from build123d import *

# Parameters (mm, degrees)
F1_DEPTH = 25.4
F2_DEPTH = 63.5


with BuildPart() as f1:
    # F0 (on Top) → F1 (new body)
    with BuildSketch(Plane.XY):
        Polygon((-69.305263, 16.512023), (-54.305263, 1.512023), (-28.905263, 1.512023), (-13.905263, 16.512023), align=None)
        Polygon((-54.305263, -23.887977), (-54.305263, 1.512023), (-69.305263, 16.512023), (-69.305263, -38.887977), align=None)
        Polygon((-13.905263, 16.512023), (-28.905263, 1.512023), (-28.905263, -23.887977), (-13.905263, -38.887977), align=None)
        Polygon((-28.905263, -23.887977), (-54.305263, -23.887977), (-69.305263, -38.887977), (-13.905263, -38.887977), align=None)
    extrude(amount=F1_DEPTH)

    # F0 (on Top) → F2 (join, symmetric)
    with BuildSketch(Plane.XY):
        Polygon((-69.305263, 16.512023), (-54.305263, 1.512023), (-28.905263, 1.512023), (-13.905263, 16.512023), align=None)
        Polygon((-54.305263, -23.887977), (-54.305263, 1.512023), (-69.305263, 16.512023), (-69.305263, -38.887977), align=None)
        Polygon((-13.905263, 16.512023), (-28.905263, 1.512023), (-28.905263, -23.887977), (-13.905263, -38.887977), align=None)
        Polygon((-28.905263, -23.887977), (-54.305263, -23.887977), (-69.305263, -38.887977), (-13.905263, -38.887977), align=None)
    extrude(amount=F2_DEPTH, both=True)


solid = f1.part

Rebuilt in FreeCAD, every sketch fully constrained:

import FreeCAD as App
import Part
import Sketcher
from FreeCAD import Vector
Q = App.Units.Quantity


def add_polygon(sketch, points):
    """Adds a closed chain of lines whose ends are joined by coincident constraints."""
    first, n = sketch.GeometryCount, len(points)
    for a, b in zip(points, points[1:] + points[:1]):
        sketch.addGeometry(Part.LineSegment(App.Vector(*a, 0), App.Vector(*b, 0)), False)
    for i in range(n):
        sketch.addConstraint(Sketcher.Constraint("Coincident", first + i, 2, first + (i + 1) % n, 1))

doc = App.newDocument("Part")
params = doc.addObject("Spreadsheet::Sheet", "Params")
for row, (alias, value) in enumerate([
    ("sketch1_width", "1 in"),
    ("pad1_length", "1 in"),
    ("sketch2_width", "1 in"),
    ("pad2_length", "5 in"),
], start=1):
    params.set(f"A{row}", alias)
    params.set(f"B{row}", "=" + value)
    params.setAlias(f"B{row}", alias)

body = doc.addObject("PartDesign::Body", "Body")

# Sketch on XY plane
sketch1 = body.newObject("Sketcher::SketchObject", "Sketch")
sketch1.AttachmentSupport = (doc.getObject("XY_Plane"), [""])
sketch1.MapMode = "FlatFace"
add_polygon(sketch1, [(-13.905263, -38.887977), (-13.905263, 16.512023), (-69.305263, 16.512023), (-69.305263, -38.887977)])  # lines 0-3
add_polygon(sketch1, [(-54.305263, 1.512023), (-28.905263, 1.512023), (-28.905263, -23.887977), (-54.305263, -23.887977)])  # lines 4-7
sketch1.addConstraint([
    Sketcher.Constraint("Vertical", 0),
    Sketcher.Constraint("Horizontal", 1),
    Sketcher.Constraint("Vertical", 2),
    Sketcher.Constraint("Horizontal", 3),
    Sketcher.Constraint("Horizontal", 4),
    Sketcher.Constraint("Vertical", 5),
    Sketcher.Constraint("Horizontal", 6),
    Sketcher.Constraint("Vertical", 7),
    Sketcher.Constraint("Equal", 3, 0),
    Sketcher.Constraint("Equal", 6, 5),
    Sketcher.Constraint("DistanceX", 4, 1, 4, 2, Q("1 in")),
    Sketcher.Constraint("DistanceX", 1, 2, 1, 1, Q("55.4 mm")),
    Sketcher.Constraint("DistanceX", 4, 2, 0, 2, Q("15 mm")),
    Sketcher.Constraint("DistanceY", 4, 2, 0, 2, Q("15 mm")),
    Sketcher.Constraint("DistanceX", 0, 2, -1, 1, Q("13.905263 mm")),
    Sketcher.Constraint("DistanceY", -1, 1, 0, 2, Q("16.512023 mm")),
])
sketch1.setExpression("Constraints[18]", "Params.sketch1_width")
pad1 = body.newObject("PartDesign::Pad", "Pad")
pad1.Profile = sketch1
pad1.setExpression("Length", "Params.pad1_length")

# Sketch on XY plane
sketch2 = body.newObject("Sketcher::SketchObject", "Sketch001")
sketch2.AttachmentSupport = (doc.getObject("XY_Plane"), [""])
sketch2.MapMode = "FlatFace"
add_polygon(sketch2, [(-13.905263, -38.887977), (-13.905263, 16.512023), (-69.305263, 16.512023), (-69.305263, -38.887977)])  # lines 0-3
add_polygon(sketch2, [(-54.305263, 1.512023), (-28.905263, 1.512023), (-28.905263, -23.887977), (-54.305263, -23.887977)])  # lines 4-7
sketch2.addConstraint([
    Sketcher.Constraint("Vertical", 0),
    Sketcher.Constraint("Horizontal", 1),
    Sketcher.Constraint("Vertical", 2),
    Sketcher.Constraint("Horizontal", 3),
    Sketcher.Constraint("Horizontal", 4),
    Sketcher.Constraint("Vertical", 5),
    Sketcher.Constraint("Horizontal", 6),
    Sketcher.Constraint("Vertical", 7),
    Sketcher.Constraint("Equal", 3, 0),
    Sketcher.Constraint("Equal", 6, 5),
    Sketcher.Constraint("DistanceX", 4, 1, 4, 2, Q("1 in")),
    Sketcher.Constraint("DistanceX", 1, 2, 1, 1, Q("55.4 mm")),
    Sketcher.Constraint("DistanceX", 4, 2, 0, 2, Q("15 mm")),
    Sketcher.Constraint("DistanceY", 4, 2, 0, 2, Q("15 mm")),
    Sketcher.Constraint("DistanceX", 0, 2, -1, 1, Q("13.905263 mm")),
    Sketcher.Constraint("DistanceY", -1, 1, 0, 2, Q("16.512023 mm")),
])
sketch2.setExpression("Constraints[18]", "Params.sketch2_width")
pad2 = body.newObject("PartDesign::Pad", "Pad001")
pad2.Profile = sketch2
pad2.setExpression("Length", "Params.pad2_length")
pad2.Midplane = True

doc.recompute()
